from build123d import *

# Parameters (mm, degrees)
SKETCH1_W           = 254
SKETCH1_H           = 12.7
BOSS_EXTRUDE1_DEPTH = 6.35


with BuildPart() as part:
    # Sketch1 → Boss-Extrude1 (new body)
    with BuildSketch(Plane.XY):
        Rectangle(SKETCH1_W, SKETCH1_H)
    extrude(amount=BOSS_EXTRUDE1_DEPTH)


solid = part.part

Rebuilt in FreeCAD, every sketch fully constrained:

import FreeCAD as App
import Part
import Sketcher
Q = App.Units.Quantity

doc = App.newDocument("Part")
params = doc.addObject("Spreadsheet::Sheet", "Params")
for row, (alias, value) in enumerate([
    ("sketch1_width", "10 in"),
    ("sketch1_height", "0.5 in"),
    ("pad1_length", "0.25 in"),
], start=1):
    params.set(f"A{row}", alias)
    params.set(f"B{row}", "=" + value)
    params.setAlias(f"B{row}", alias)

body = doc.addObject("PartDesign::Body", "Body")

sketch1 = doc.addObject("Sketcher::SketchObject", "Sketch")
body.addObject(sketch1)
sketch1.AttachmentSupport = (doc.XY_Plane, [""])
sketch1.MapMode = "FlatFace"
sketch1.addGeometry([
    Part.LineSegment(App.Vector(-127, 6, 0), App.Vector(-127, -6, 0)),
    Part.LineSegment(App.Vector(-127, -6, 0), App.Vector(127, -6, 0)),
    Part.LineSegment(App.Vector(127, -6, 0), App.Vector(127, 6, 0)),
    Part.LineSegment(App.Vector(127, 6, 0), App.Vector(-127, 6, 0)),
], False)
sketch1.addConstraint([
    Sketcher.Constraint("Coincident", 0, 2, 1, 1),
    Sketcher.Constraint("Coincident", 1, 2, 2, 1),
    Sketcher.Constraint("Coincident", 2, 2, 3, 1),
    Sketcher.Constraint("Coincident", 3, 2, 0, 1),
    Sketcher.Constraint("Vertical", 0),
    Sketcher.Constraint("Horizontal", 1),
    Sketcher.Constraint("Vertical", 2),
    Sketcher.Constraint("Horizontal", 3),
    Sketcher.Constraint("Symmetric", 0, 2, 2, 2, -1, 1),
    Sketcher.Constraint("DistanceX", 1, 1, 1, 2, Q("10 in")),
    Sketcher.Constraint("DistanceY", 0, 2, 0, 1, Q("0.5 in")),
])
sketch1.setExpression("Constraints[9]", "Params.sketch1_width")
sketch1.setExpression("Constraints[10]", "Params.sketch1_height")
pad1 = doc.addObject("PartDesign::Pad", "Pad")
body.addObject(pad1)
pad1.Profile = sketch1
pad1.setExpression("Length", "Params.pad1_length")

doc.recompute()
